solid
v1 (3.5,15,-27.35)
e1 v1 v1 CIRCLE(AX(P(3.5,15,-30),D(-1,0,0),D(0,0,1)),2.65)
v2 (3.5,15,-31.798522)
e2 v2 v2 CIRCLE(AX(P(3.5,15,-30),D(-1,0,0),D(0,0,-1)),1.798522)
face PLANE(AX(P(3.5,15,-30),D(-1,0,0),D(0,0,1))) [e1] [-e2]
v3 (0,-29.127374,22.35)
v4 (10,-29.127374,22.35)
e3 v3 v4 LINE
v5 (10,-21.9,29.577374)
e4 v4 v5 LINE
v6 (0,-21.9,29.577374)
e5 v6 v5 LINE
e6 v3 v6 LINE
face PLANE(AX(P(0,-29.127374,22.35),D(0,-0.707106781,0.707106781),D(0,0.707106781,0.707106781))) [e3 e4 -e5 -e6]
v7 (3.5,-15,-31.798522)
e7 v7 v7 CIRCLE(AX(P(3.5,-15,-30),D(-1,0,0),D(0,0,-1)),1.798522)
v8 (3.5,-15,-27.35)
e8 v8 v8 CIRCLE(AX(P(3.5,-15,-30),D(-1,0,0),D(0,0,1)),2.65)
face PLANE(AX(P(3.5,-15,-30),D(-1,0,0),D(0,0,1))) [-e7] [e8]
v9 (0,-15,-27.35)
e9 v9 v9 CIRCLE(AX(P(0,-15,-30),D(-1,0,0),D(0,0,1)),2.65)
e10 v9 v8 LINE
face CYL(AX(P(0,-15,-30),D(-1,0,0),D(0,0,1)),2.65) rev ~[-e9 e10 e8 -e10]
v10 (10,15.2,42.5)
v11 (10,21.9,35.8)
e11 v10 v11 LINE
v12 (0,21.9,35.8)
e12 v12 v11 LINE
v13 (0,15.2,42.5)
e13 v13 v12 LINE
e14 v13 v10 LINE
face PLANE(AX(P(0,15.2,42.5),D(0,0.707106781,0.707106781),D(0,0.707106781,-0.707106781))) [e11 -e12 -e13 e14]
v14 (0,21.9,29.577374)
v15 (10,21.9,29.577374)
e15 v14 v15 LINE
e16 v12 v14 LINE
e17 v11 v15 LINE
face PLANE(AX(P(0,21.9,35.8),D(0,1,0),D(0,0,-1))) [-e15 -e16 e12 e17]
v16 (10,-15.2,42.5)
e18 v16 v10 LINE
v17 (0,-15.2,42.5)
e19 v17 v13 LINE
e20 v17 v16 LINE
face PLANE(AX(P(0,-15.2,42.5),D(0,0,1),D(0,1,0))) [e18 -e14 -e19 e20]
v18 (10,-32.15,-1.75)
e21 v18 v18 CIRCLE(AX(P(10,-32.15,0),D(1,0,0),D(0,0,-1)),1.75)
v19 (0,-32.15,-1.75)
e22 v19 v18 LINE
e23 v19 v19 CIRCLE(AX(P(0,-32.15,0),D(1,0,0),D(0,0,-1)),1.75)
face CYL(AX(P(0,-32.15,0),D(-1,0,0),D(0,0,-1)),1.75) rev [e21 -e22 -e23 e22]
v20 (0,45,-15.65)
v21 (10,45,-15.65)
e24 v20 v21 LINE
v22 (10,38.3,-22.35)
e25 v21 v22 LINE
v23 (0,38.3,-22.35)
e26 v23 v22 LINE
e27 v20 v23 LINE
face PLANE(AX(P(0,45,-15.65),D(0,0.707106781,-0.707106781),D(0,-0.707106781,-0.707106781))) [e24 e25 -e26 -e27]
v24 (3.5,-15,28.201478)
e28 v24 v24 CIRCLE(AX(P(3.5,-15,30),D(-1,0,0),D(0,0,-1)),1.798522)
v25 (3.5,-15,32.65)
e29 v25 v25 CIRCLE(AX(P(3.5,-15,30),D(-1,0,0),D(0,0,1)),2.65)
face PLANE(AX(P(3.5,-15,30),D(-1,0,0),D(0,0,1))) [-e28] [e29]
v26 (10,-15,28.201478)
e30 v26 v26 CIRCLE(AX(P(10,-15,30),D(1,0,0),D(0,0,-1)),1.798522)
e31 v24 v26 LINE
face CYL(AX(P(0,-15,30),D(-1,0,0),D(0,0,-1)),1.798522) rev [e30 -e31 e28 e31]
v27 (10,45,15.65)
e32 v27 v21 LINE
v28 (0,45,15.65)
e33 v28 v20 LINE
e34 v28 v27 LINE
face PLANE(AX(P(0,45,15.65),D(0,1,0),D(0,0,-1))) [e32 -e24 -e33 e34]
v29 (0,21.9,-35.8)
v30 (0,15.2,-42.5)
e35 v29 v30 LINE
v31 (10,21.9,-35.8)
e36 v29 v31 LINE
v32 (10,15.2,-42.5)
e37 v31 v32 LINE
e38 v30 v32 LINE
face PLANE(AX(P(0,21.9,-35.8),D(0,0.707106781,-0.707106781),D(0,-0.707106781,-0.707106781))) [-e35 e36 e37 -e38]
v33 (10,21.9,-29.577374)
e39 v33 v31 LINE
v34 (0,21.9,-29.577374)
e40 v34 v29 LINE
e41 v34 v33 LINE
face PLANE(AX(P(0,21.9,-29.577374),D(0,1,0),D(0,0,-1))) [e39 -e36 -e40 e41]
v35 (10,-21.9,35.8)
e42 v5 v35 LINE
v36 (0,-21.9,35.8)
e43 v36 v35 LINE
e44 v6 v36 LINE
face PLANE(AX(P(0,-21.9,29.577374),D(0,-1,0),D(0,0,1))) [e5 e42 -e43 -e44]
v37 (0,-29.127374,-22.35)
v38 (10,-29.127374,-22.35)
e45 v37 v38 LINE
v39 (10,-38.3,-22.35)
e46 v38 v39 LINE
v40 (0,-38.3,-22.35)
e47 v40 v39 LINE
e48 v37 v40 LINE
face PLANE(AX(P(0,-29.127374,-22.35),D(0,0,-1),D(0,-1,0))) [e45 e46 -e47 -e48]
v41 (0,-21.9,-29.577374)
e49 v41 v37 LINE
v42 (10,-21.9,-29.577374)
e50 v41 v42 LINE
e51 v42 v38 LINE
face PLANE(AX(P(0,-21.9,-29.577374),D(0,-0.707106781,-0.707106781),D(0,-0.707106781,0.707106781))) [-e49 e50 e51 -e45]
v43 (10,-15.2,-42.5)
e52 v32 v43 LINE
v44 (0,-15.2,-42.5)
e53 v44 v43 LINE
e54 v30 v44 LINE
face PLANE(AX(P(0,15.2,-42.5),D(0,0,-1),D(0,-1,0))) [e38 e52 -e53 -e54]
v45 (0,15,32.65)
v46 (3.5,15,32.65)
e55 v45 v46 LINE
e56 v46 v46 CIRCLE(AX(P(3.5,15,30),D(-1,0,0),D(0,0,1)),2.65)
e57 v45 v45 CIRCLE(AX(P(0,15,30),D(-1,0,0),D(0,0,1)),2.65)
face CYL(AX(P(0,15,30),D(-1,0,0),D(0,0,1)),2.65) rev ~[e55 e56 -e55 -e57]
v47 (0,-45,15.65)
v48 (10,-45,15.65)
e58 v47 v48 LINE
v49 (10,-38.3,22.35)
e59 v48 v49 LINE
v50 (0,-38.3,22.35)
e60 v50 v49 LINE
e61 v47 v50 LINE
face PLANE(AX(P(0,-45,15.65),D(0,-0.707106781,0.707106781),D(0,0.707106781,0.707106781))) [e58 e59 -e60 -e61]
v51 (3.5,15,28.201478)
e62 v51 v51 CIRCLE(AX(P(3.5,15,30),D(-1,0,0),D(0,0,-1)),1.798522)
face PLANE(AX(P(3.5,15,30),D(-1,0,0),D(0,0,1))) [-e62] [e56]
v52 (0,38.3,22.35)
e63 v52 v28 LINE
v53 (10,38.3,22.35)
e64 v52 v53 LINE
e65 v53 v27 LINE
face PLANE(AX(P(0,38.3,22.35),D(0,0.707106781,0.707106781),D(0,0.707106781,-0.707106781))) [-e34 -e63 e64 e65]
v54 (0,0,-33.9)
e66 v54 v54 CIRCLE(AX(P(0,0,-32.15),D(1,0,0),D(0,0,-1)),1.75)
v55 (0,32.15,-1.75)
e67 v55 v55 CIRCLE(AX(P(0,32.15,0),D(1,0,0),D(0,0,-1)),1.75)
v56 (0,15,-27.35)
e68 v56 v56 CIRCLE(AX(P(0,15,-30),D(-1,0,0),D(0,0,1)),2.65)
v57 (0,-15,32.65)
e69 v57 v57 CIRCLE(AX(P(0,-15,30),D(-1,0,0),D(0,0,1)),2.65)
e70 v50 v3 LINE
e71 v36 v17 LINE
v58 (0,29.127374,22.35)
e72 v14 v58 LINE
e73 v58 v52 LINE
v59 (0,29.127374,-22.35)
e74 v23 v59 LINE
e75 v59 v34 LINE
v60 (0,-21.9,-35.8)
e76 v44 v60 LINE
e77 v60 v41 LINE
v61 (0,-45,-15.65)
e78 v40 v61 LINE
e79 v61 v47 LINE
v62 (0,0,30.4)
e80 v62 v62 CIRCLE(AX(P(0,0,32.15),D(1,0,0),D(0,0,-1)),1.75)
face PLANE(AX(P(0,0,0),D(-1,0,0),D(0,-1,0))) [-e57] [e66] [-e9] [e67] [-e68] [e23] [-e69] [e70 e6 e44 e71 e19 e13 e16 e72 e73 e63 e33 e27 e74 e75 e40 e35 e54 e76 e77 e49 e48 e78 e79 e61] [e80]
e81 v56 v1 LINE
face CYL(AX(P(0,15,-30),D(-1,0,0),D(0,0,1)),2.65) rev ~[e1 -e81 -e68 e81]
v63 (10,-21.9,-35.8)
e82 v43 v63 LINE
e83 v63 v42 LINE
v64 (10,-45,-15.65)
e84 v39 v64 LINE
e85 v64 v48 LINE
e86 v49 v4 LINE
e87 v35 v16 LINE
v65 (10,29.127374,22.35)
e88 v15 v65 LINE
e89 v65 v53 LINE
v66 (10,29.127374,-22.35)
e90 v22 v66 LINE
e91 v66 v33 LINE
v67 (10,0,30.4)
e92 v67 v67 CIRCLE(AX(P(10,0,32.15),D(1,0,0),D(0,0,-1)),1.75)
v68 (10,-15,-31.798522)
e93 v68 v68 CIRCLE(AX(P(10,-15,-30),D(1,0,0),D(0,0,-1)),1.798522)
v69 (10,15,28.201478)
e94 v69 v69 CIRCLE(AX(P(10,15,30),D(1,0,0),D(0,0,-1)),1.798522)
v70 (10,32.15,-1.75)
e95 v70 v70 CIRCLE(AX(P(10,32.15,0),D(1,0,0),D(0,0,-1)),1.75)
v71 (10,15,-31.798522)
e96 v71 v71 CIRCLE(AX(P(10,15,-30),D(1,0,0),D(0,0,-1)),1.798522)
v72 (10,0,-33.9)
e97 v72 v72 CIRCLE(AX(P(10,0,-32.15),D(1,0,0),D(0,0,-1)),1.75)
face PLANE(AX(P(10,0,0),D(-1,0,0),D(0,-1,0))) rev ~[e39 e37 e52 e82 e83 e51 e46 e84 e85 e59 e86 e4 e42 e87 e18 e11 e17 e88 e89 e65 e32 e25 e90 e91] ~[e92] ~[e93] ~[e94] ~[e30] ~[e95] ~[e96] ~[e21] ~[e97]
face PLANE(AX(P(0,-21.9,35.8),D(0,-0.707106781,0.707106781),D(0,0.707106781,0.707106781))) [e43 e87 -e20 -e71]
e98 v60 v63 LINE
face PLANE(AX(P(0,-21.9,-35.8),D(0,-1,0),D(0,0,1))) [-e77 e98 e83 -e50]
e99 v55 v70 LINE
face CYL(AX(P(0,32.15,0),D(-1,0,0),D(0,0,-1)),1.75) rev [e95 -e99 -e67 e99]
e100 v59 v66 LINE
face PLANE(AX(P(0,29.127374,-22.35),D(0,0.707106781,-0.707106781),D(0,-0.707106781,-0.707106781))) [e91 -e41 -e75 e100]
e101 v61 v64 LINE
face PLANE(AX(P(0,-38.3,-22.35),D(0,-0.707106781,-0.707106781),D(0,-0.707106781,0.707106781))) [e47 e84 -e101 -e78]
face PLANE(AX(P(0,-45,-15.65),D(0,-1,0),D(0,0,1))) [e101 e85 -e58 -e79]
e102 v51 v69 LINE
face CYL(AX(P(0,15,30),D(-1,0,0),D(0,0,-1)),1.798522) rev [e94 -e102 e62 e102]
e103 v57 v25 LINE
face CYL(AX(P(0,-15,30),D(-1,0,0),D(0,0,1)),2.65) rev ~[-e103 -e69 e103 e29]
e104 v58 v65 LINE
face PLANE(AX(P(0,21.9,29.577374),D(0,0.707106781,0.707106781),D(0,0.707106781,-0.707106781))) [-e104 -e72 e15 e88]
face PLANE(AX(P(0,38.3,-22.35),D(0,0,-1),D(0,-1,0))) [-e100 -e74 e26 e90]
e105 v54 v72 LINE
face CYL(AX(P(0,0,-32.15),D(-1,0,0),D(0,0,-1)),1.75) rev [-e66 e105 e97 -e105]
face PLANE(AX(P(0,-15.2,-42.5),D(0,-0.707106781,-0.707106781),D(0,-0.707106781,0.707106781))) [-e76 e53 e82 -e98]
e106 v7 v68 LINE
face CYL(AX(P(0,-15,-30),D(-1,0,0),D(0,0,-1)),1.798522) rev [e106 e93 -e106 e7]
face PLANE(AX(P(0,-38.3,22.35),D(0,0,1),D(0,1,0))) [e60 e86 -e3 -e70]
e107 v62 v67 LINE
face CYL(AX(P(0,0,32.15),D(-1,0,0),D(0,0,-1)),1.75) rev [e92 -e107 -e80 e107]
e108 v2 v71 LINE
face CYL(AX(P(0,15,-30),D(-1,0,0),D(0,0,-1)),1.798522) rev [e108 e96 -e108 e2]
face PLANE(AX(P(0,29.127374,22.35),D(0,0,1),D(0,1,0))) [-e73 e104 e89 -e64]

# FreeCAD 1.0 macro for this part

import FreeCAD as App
import Part
import Sketcher
Q = App.Units.Quantity


def add_polygon(sketch, points):
    """Adds a closed chain of lines whose ends are joined by coincident constraints."""
    first, n = sketch.GeometryCount, len(points)
    for a, b in zip(points, points[1:] + points[:1]):
        sketch.addGeometry(Part.LineSegment(App.Vector(*a, 0), App.Vector(*b, 0)), False)
    for i in range(n):
        sketch.addConstraint(Sketcher.Constraint("Coincident", first + i, 2, first + (i + 1) % n, 1))

doc = App.newDocument("Part")
params = doc.addObject("Spreadsheet::Sheet", "Params")
for row, (alias, value) in enumerate([
    ("sketch1_diameter", "3.5 mm"),
    ("sketch1_width", "30.4 mm"),
    ("sketch1_height", "31.3 mm"),
    ("pad1_length", "10 mm"),
    ("sketch2_diameter", "5.3 mm"),
    ("pocket1_length", "3.5 mm"),
], start=1):
    params.set(f"A{row}", alias)
    params.set(f"B{row}", "=" + value)
    params.setAlias(f"B{row}", alias)

body = doc.addObject("PartDesign::Body", "Body")

# Sketch on YZ plane
sketch1 = body.newObject("Sketcher::SketchObject", "Sketch")
sketch1.AttachmentSupport = (doc.getObject("YZ_Plane"), [""])
sketch1.MapMode = "FlatFace"
add_polygon(sketch1, [(-45, 15.7), (-45, -15.7), (-38.3, -22.4), (-29.1, -22.4), (-21.9, -29.6), (-21.9, -35.8), (-15.2, -42.5), (15.2, -42.5), (21.9, -35.8), (21.9, -29.6), (29.1, -22.4), (38.3, -22.4), (45, -15.7), (45, 15.7), (38.3, 22.4), (29.1, 22.4), (21.9, 29.6), (21.9, 35.8), (15.2, 42.5), (-15.2, 42.5), (-21.9, 35.8), (-21.9, 29.6), (-29.1, 22.4), (-38.3, 22.4)])  # lines 0-23
sketch1.addGeometry(Part.Circle(App.Vector(15, -30, 0), App.Vector(0, 0, 1), 1.8), False)  # 24
sketch1.addGeometry(Part.Circle(App.Vector(0, -32.1, 0), App.Vector(0, 0, 1), 1.8), False)  # 25
sketch1.addGeometry(Part.Circle(App.Vector(32.1, 0, 0), App.Vector(0, 0, 1), 1.8), False)  # 26
sketch1.addGeometry(Part.Circle(App.Vector(-15, -30, 0), App.Vector(0, 0, 1), 1.8), False)  # 27
sketch1.addGeometry(Part.Circle(App.Vector(-32.1, 0, 0), App.Vector(0, 0, 1), 1.8), False)  # 28
sketch1.addGeometry(Part.Circle(App.Vector(15, 30, 0), App.Vector(0, 0, 1), 1.8), False)  # 29
sketch1.addGeometry(Part.Circle(App.Vector(0, 32.1, 0), App.Vector(0, 0, 1), 1.8), False)  # 30
sketch1.addGeometry(Part.Circle(App.Vector(-15, 30, 0), App.Vector(0, 0, 1), 1.8), False)  # 31
sketch1.addConstraint([
    Sketcher.Constraint("Vertical", 0),
    Sketcher.Constraint("Horizontal", 2),
    Sketcher.Constraint("Vertical", 4),
    Sketcher.Constraint("Horizontal", 6),
    Sketcher.Constraint("Vertical", 8),
    Sketcher.Constraint("Horizontal", 10),
    Sketcher.Constraint("Vertical", 12),
    Sketcher.Constraint("Horizontal", 14),
    Sketcher.Constraint("Vertical", 16),
    Sketcher.Constraint("Horizontal", 18),
    Sketcher.Constraint("Vertical", 20),
    Sketcher.Constraint("Horizontal", 22),
    Sketcher.Constraint("Equal", 25, 26),
    Sketcher.Constraint("Equal", 24, 27),
    Sketcher.Constraint("Equal", 26, 28),
    Sketcher.Constraint("Equal", 27, 29),
    Sketcher.Constraint("Equal", 28, 30),
    Sketcher.Constraint("Equal", 29, 31),
    Sketcher.Constraint("Symmetric", 26, 3, 28, 3, -1, 1),
    Sketcher.Constraint("Symmetric", 27, 3, 29, 3, -1, 1),
    Sketcher.Constraint("Symmetric", 25, 3, 30, 3, -1, 1),
    Sketcher.Constraint("Symmetric", 24, 3, 31, 3, -1, 1),
    Sketcher.Constraint("Symmetric", 0, 2, 12, 2, -1, 1),
    Sketcher.Constraint("Symmetric", 1, 2, 13, 2, -1, 1),
    Sketcher.Constraint("Symmetric", 3, 2, 15, 2, -1, 1),
    Sketcher.Constraint("Symmetric", 5, 2, 17, 2, -1, 1),
    Sketcher.Constraint("Symmetric", 7, 2, 19, 2, -1, 1),
    Sketcher.Constraint("Symmetric", 9, 2, 21, 2, -1, 1),
    Sketcher.Constraint("Symmetric", 24, 3, 27, 3, -2),
    Sketcher.Constraint("Symmetric", 4, 2, 7, 2, -2),
    Sketcher.Constraint("Symmetric", 2, 2, 9, 2, -2),
    Sketcher.Constraint("PointOnObject", 25, 3, -2),
    Sketcher.Constraint("PointOnObject", 26, 3, -1),
    Sketcher.Constraint("Parallel", 1, 3),
    Sketcher.Constraint("Parallel", 3, 5),
    Sketcher.Constraint("Perpendicular", 5, 7),
    Sketcher.Constraint("Parallel", 7, 9),
    Sketcher.Constraint("Parallel", 9, 11),
    Sketcher.Constraint("Parallel", 13, 15),
    Sketcher.Constraint("Parallel", 15, 17),
    Sketcher.Constraint("Perpendicular", 17, 19),
    Sketcher.Constraint("Parallel", 19, 21),
    Sketcher.Constraint("Parallel", 21, 23),
    Sketcher.Constraint("Horizontal", 3, 2, 8, 2),
    Sketcher.Constraint("Horizontal", 0, 2, 11, 2),
    Sketcher.Constraint("Horizontal", 12, 2, 23, 2),
    Sketcher.Constraint("Equal", 1, 5),
    Sketcher.Constraint("Diameter", 25, Q("3.5 mm")),
    Sketcher.Constraint("DistanceX", 6, 1, 6, 2, Q("30.4 mm")),
    Sketcher.Constraint("DistanceY", 0, 2, 0, 1, Q("31.3 mm")),
    Sketcher.Constraint("DistanceX", -1, 1, 24, 3, Q("15 mm")),
    Sketcher.Constraint("DistanceY", 24, 3, -1, 1, Q("30 mm")),
    Sketcher.Constraint("DistanceX", 0, 2, -1, 1, Q("45 mm")),
    Sketcher.Constraint("DistanceY", 10, 2, 12, 2, Q("38 mm")),
    Sketcher.Constraint("DistanceY", 4, 2, -1, 1, Q("35.8 mm")),
    Sketcher.Constraint("DistanceX", 28, 3, 26, 3, Q("64.3 mm")),
    Sketcher.Constraint("DistanceY", 25, 3, 0, 2, Q("16.5 mm")),
    Sketcher.Constraint("Diameter", 24, Q("3.597044 mm")),
    Sketcher.Constraint("Distance", 3, Q("10.22105 mm")),
])
sketch1.setExpression("Constraints[71]", "Params.sketch1_diameter")
sketch1.setExpression("Constraints[72]", "Params.sketch1_width")
sketch1.setExpression("Constraints[73]", "Params.sketch1_height")
pad1 = body.newObject("PartDesign::Pad", "Pad")
pad1.Profile = sketch1
pad1.setExpression("Length", "Params.pad1_length")

# Sketch on YZ plane
sketch2 = body.newObject("Sketcher::SketchObject", "Sketch001")
sketch2.AttachmentSupport = (doc.getObject("YZ_Plane"), [""])
sketch2.MapMode = "FlatFace"
sketch2.addGeometry([
    Part.Circle(App.Vector(15, 30, 0), App.Vector(0, 0, 1), 2.6),
    Part.Circle(App.Vector(-15, 30, 0), App.Vector(0, 0, 1), 2.6),
    Part.Circle(App.Vector(-15, -30, 0), App.Vector(0, 0, 1), 2.6),
    Part.Circle(App.Vector(15, -30, 0), App.Vector(0, 0, 1), 2.6),
], False)
sketch2.addConstraint([
    Sketcher.Constraint("Equal", 0, 1),
    Sketcher.Constraint("Equal", 1, 2),
    Sketcher.Constraint("Equal", 2, 3),
    Sketcher.Constraint("Symmetric", 0, 3, 2, 3, -1, 1),
    Sketcher.Constraint("Symmetric", 1, 3, 3, 3, -1, 1),
    Sketcher.Constraint("Symmetric", 0, 3, 1, 3, -2),
    Sketcher.Constraint("Diameter", 0, Q("5.3 mm")),
    Sketcher.Constraint("DistanceX", -1, 1, 0, 3, Q("15 mm")),
    Sketcher.Constraint("DistanceY", -1, 1, 0, 3, Q("30 mm")),
])
sketch2.setExpression("Constraints[6]", "Params.sketch2_diameter")
pocket1 = body.newObject("PartDesign::Pocket", "Pocket")
pocket1.Profile = sketch2
pocket1.setExpression("Length", "Params.pocket1_length")
pocket1.Reversed = True

doc.recompute()
